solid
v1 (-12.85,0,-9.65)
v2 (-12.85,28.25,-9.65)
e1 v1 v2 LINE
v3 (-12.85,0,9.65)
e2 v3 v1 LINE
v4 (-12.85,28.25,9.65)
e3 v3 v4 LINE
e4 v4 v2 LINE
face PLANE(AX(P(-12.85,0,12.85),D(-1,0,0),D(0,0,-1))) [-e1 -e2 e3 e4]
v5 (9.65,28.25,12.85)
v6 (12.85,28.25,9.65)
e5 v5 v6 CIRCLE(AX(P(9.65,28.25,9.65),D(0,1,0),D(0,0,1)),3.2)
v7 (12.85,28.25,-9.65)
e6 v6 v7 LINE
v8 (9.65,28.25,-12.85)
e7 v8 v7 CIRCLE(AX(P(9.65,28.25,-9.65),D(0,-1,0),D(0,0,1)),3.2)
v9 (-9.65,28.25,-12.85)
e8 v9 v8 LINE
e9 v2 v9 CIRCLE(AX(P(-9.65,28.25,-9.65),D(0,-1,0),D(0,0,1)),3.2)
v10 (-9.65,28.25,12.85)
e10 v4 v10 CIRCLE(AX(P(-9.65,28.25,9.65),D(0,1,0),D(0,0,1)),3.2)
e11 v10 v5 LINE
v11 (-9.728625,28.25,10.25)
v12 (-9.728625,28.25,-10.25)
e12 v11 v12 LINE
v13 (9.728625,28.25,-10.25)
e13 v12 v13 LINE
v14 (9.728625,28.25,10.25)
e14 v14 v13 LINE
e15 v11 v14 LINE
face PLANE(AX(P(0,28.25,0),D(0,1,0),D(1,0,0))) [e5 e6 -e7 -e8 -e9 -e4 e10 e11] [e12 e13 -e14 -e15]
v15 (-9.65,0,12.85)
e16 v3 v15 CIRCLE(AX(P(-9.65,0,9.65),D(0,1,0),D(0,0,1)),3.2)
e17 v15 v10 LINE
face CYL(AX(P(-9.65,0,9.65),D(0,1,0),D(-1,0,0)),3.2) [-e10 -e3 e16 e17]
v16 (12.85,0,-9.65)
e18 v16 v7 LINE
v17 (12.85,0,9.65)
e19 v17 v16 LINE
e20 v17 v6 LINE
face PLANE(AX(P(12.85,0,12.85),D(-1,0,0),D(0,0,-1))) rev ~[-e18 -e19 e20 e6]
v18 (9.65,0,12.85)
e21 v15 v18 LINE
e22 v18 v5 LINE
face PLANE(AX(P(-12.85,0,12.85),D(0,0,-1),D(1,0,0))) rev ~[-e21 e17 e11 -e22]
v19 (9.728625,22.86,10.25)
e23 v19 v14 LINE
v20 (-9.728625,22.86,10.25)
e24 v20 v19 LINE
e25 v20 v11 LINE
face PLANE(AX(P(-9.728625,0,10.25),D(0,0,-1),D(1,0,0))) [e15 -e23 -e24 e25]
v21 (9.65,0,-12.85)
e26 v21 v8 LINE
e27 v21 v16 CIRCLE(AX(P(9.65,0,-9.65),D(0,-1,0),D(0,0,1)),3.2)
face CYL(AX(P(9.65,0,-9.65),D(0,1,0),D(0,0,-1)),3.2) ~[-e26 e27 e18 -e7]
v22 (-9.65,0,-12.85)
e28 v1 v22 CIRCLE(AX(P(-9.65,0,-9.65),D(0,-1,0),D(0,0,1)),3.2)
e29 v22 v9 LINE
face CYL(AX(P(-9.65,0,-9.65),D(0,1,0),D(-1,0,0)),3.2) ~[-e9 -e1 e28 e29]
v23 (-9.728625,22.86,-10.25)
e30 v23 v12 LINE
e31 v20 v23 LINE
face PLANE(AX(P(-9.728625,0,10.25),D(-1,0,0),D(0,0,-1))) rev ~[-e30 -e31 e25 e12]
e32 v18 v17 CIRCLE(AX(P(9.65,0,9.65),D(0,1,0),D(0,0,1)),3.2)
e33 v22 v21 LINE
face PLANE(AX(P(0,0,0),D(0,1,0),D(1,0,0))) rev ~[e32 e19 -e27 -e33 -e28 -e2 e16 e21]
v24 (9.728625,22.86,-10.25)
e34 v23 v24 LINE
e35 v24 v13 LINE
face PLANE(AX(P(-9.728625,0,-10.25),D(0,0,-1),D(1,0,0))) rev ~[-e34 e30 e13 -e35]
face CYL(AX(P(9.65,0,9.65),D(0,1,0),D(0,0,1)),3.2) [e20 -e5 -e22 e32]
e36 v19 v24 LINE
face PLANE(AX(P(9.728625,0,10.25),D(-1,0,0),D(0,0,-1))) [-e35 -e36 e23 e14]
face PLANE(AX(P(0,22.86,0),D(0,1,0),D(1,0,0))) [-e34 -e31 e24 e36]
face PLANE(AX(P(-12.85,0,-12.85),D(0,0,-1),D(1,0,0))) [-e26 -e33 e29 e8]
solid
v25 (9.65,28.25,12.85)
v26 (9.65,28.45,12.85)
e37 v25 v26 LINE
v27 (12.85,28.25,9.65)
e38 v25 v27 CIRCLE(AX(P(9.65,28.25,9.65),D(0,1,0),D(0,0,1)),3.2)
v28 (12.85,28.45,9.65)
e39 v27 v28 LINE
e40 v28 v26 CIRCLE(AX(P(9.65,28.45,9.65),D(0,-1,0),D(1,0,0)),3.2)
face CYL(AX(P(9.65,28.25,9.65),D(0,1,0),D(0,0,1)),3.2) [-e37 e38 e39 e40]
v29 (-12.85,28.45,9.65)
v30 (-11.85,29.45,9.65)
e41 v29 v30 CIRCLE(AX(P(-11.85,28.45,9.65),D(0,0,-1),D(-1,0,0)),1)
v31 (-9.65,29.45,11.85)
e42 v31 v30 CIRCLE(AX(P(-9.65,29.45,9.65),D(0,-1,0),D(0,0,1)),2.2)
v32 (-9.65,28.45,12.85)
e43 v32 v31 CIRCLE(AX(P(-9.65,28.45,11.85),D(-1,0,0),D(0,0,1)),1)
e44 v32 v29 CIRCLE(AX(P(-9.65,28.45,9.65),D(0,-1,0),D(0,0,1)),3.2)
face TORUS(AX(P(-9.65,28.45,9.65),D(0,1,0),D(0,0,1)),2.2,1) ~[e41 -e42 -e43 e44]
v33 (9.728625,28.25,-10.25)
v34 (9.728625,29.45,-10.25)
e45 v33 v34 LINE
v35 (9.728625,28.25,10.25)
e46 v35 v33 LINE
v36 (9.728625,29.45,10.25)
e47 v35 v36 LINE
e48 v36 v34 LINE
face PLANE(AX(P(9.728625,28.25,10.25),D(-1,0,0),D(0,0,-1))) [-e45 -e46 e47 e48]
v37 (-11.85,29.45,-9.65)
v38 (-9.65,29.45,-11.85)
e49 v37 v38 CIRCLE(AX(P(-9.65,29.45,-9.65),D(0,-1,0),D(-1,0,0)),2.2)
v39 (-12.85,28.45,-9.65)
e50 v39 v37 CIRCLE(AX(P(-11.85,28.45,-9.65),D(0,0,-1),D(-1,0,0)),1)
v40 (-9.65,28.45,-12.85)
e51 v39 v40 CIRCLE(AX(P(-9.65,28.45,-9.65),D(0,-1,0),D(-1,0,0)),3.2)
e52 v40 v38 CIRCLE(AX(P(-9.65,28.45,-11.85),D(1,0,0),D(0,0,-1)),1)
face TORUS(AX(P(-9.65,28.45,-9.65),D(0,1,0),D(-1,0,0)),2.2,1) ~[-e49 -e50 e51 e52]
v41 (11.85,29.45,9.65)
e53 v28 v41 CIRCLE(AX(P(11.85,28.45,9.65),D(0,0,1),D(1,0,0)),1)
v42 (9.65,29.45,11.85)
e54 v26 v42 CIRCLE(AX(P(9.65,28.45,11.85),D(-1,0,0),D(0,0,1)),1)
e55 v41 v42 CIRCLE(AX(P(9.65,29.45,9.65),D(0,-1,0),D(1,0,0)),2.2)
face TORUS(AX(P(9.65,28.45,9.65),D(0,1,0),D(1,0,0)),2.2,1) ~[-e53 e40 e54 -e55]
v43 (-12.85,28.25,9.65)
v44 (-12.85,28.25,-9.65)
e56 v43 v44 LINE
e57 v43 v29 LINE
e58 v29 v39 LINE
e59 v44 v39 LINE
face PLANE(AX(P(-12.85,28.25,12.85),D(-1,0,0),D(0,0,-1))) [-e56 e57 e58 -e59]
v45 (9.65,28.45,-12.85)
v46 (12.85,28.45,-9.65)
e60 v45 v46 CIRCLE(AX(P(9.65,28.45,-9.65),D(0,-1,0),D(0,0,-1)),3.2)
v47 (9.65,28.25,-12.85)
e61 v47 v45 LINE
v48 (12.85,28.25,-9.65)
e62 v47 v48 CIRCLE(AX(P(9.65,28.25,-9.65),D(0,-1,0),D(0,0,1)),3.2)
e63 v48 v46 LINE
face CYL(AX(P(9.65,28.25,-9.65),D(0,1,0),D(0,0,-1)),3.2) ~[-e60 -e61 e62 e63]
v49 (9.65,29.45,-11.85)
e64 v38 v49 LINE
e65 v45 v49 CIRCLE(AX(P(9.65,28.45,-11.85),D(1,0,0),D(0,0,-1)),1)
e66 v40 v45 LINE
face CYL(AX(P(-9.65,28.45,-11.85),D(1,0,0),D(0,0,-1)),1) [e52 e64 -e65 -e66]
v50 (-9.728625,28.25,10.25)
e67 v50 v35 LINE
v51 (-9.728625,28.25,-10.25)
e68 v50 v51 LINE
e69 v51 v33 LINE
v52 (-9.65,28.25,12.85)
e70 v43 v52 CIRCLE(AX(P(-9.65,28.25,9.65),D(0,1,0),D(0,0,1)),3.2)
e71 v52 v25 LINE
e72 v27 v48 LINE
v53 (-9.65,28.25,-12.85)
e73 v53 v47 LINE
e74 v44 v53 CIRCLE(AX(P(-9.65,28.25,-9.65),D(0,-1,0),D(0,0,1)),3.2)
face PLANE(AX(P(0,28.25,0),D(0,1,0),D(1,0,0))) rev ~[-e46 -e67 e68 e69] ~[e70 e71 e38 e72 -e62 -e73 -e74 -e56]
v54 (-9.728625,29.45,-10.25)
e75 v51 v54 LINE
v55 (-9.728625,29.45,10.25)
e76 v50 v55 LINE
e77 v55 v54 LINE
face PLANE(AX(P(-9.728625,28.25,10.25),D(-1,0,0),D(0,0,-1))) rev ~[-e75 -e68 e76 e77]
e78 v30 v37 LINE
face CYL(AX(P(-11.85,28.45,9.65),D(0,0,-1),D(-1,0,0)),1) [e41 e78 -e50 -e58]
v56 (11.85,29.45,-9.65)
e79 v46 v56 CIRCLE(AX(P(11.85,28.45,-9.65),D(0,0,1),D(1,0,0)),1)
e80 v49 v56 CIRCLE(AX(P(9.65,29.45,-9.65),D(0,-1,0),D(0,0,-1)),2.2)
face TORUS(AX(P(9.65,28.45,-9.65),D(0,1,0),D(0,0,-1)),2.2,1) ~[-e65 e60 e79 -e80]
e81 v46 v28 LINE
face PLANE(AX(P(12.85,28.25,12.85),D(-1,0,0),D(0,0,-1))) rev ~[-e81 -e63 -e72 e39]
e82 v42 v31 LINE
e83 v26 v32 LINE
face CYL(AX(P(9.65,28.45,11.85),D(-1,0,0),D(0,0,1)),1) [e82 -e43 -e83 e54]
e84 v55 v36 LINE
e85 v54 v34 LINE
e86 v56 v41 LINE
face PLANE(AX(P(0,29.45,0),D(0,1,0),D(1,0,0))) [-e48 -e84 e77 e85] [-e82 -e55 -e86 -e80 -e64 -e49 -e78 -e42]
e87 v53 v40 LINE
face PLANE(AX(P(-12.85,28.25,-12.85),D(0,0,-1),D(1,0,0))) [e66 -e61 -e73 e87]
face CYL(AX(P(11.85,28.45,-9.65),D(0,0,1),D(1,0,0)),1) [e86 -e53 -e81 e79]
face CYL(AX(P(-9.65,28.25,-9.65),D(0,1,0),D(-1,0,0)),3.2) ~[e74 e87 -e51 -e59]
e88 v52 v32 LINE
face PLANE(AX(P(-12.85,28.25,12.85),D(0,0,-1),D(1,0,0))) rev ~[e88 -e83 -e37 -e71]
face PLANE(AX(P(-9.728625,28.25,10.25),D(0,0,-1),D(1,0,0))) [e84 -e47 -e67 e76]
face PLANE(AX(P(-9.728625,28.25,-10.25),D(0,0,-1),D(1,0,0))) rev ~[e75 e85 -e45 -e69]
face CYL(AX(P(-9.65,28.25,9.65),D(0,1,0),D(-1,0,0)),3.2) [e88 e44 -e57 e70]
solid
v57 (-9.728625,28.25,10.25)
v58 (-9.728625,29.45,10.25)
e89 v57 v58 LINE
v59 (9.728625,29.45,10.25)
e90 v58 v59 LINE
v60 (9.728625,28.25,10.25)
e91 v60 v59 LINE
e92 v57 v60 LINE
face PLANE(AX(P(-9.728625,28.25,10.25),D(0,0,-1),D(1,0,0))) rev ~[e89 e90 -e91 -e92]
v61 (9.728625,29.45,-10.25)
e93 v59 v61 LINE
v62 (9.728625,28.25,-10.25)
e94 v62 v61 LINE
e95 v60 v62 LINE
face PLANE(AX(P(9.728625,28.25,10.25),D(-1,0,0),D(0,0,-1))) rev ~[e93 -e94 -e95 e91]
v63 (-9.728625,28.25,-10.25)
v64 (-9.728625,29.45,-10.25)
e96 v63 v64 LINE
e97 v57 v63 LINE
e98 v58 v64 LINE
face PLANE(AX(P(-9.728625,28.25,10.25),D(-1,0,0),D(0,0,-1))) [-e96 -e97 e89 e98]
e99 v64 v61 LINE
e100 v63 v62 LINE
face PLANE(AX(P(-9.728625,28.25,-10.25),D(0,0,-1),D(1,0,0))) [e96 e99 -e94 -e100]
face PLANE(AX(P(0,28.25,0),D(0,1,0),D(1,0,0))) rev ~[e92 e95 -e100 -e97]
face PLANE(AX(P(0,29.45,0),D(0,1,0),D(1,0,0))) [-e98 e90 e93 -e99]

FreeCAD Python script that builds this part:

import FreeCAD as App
import Part
import Sketcher
from FreeCAD import Vector
Q = App.Units.Quantity


def edges_at(feature, points):
    """Names of the edges that pass closest to the given points."""
    edges = feature.Shape.Edges
    near = lambda p: min(range(len(edges)), key=lambda i: edges[i].distToShape(Part.Vertex(*p))[0])
    return sorted({f"Edge{near(p) + 1}" for p in points})


def add_polygon(sketch, points):
    """Adds a closed chain of lines whose ends are joined by coincident constraints."""
    first, n = sketch.GeometryCount, len(points)
    for a, b in zip(points, points[1:] + points[:1]):
        sketch.addGeometry(Part.LineSegment(App.Vector(*a, 0), App.Vector(*b, 0)), False)
    for i in range(n):
        sketch.addConstraint(Sketcher.Constraint("Coincident", first + i, 2, first + (i + 1) % n, 1))

doc = App.newDocument("Part")
body = doc.addObject("PartDesign::Body", "Body")

# Sketch on XZ plane
sketch1 = body.newObject("Sketcher::SketchObject", "Sketch")
sketch1.AttachmentSupport = (doc.getObject("XZ_Plane"), [""])
sketch1.MapMode = "FlatFace"
add_polygon(sketch1, [(-12.85, -12.85), (-12.85, 12.85), (12.85, 12.85), (12.85, -12.85)])  # lines 0-3
add_polygon(sketch1, [(9.728625, 10.25), (-9.728625, 10.25), (-9.728625, -10.25), (9.728625, -10.25)])  # lines 4-7
sketch1.addConstraint([
    Sketcher.Constraint("Vertical", 0),
    Sketcher.Constraint("Horizontal", 1),
    Sketcher.Constraint("Vertical", 2),
    Sketcher.Constraint("Horizontal", 3),
    Sketcher.Constraint("Horizontal", 4),
    Sketcher.Constraint("Vertical", 5),
    Sketcher.Constraint("Horizontal", 6),
    Sketcher.Constraint("Vertical", 7),
    Sketcher.Constraint("Symmetric", 0, 2, 2, 2, -1, 1),
    Sketcher.Constraint("Symmetric", 4, 2, 6, 2, -1, 1),
    Sketcher.Constraint("Equal", 3, 0),
    Sketcher.Constraint("DistanceX", 1, 1, 1, 2, Q("25.7 mm")),
    Sketcher.Constraint("DistanceY", 5, 2, 5, 1, Q("20.5 mm")),
    Sketcher.Constraint("DistanceX", 4, 2, 4, 1, Q("19.457251 mm")),
])
pad1 = body.newObject("PartDesign::Pad", "Pad")
pad1.Profile = sketch1
pad1.Length = 28.25
pad1.Reversed = True

# Sketch on XZ plane
sketch2 = body.newObject("Sketcher::SketchObject", "Sketch001")
sketch2.AttachmentSupport = (doc.getObject("XZ_Plane"), [""])
sketch2.MapMode = "FlatFace"
add_polygon(sketch2, [(-9.728625, -10.25), (-9.728625, 10.25), (9.728625, 10.25), (9.728625, -10.25)])  # lines 0-3
sketch2.addConstraint([
    Sketcher.Constraint("Vertical", 0),
    Sketcher.Constraint("Horizontal", 1),
    Sketcher.Constraint("Vertical", 2),
    Sketcher.Constraint("Horizontal", 3),
    Sketcher.Constraint("Symmetric", 0, 2, 2, 2, -1, 1),
    Sketcher.Constraint("DistanceY", 0, 1, 0, 2, Q("20.5 mm")),
    Sketcher.Constraint("DistanceX", 1, 1, 1, 2, Q("19.457251 mm")),
])
pad2 = body.newObject("PartDesign::Pad", "Pad001")
pad2.Profile = sketch2
pad2.Length = 22.86
pad2.Reversed = True
doc.recompute()

fillet = body.newObject("PartDesign::Fillet", "Fillet")
fillet.Base = (pad2, edges_at(pad2, [
    (-12.85, 14.125, 12.85),
    (-12.85, 14.125, -12.85),
    (12.85, 14.125, -12.85),
    (12.85, 14.125, 12.85),
]))
fillet.Radius = 3.2
body2 = doc.addObject("PartDesign::Body", "Body001")

# Sketch on XZ plane
sketch3 = body2.newObject("Sketcher::SketchObject", "Sketch002")
sketch3.AttachmentSupport = (doc.getObject("XZ_Plane001"), [""])
sketch3.MapMode = "FlatFace"
sketch3.AttachmentOffset = App.Placement(Vector(0, 0, -28.25), App.Rotation())
add_polygon(sketch3, [(-9.728625, -10.25), (-9.728625, 10.25), (9.728625, 10.25), (9.728625, -10.25)])  # lines 0-3
sketch3.addConstraint([
    Sketcher.Constraint("Vertical", 0),
    Sketcher.Constraint("Horizontal", 1),
    Sketcher.Constraint("Vertical", 2),
    Sketcher.Constraint("Horizontal", 3),
    Sketcher.Constraint("Symmetric", 0, 2, 2, 2, -1, 1),
    Sketcher.Constraint("DistanceY", 0, 1, 0, 2, Q("20.5 mm")),
    Sketcher.Constraint("DistanceX", 1, 1, 1, 2, Q("19.457251 mm")),
])
pad3 = body2.newObject("PartDesign::Pad", "Pad002")
pad3.Profile = sketch3
pad3.Length = 1.2
pad3.Reversed = True
body3 = doc.addObject("PartDesign::Body", "Body002")

# Sketch on XZ plane
sketch4 = body3.newObject("Sketcher::SketchObject", "Sketch003")
sketch4.AttachmentSupport = (doc.getObject("XZ_Plane002"), [""])
sketch4.MapMode = "FlatFace"
sketch4.AttachmentOffset = App.Placement(Vector(0, 0, -28.25), App.Rotation())
add_polygon(sketch4, [(-12.85, -12.85), (-12.85, 12.85), (12.85, 12.85), (12.85, -12.85)])  # lines 0-3
add_polygon(sketch4, [(9.728625, 10.25), (-9.728625, 10.25), (-9.728625, -10.25), (9.728625, -10.25)])  # lines 4-7
sketch4.addConstraint([
    Sketcher.Constraint("Vertical", 0),
    Sketcher.Constraint("Horizontal", 1),
    Sketcher.Constraint("Vertical", 2),
    Sketcher.Constraint("Horizontal", 3),
    Sketcher.Constraint("Horizontal", 4),
    Sketcher.Constraint("Vertical", 5),
    Sketcher.Constraint("Horizontal", 6),
    Sketcher.Constraint("Vertical", 7),
    Sketcher.Constraint("Symmetric", 0, 2, 2, 2, -1, 1),
    Sketcher.Constraint("Symmetric", 4, 2, 6, 2, -1, 1),
    Sketcher.Constraint("Equal", 3, 0),
    Sketcher.Constraint("DistanceX", 1, 1, 1, 2, Q("25.7 mm")),
    Sketcher.Constraint("DistanceY", 5, 2, 5, 1, Q("20.5 mm")),
    Sketcher.Constraint("DistanceX", 4, 2, 4, 1, Q("19.457251 mm")),
])
pad4 = body3.newObject("PartDesign::Pad", "Pad003")
pad4.Profile = sketch4
pad4.Length = 1.2
pad4.Reversed = True
doc.recompute()

fillet2 = body3.newObject("PartDesign::Fillet", "Fillet001")
fillet2.Base = (pad4, edges_at(pad4, [
    (-12.85, 28.85, 12.85),
    (12.85, 28.85, 12.85),
    (12.85, 28.85, -12.85),
    (-12.85, 28.85, -12.85),
]))
fillet2.Radius = 3.2
doc.recompute()

fillet3 = body3.newObject("PartDesign::Fillet", "Fillet002")
fillet3.Base = (fillet2, edges_at(fillet2, [
    (-12.85, 29.45, 0),
    (0, 29.45, -12.85),
    (0, 29.45, 12.85),
    (12.85, 29.45, 0),
    (-11.913, 29.45, 11.913),
    (11.913, 29.45, 11.913),
    (11.913, 29.45, -11.913),
    (-11.913, 29.45, -11.913),
]))
fillet3.Radius = 1

doc.recompute()
